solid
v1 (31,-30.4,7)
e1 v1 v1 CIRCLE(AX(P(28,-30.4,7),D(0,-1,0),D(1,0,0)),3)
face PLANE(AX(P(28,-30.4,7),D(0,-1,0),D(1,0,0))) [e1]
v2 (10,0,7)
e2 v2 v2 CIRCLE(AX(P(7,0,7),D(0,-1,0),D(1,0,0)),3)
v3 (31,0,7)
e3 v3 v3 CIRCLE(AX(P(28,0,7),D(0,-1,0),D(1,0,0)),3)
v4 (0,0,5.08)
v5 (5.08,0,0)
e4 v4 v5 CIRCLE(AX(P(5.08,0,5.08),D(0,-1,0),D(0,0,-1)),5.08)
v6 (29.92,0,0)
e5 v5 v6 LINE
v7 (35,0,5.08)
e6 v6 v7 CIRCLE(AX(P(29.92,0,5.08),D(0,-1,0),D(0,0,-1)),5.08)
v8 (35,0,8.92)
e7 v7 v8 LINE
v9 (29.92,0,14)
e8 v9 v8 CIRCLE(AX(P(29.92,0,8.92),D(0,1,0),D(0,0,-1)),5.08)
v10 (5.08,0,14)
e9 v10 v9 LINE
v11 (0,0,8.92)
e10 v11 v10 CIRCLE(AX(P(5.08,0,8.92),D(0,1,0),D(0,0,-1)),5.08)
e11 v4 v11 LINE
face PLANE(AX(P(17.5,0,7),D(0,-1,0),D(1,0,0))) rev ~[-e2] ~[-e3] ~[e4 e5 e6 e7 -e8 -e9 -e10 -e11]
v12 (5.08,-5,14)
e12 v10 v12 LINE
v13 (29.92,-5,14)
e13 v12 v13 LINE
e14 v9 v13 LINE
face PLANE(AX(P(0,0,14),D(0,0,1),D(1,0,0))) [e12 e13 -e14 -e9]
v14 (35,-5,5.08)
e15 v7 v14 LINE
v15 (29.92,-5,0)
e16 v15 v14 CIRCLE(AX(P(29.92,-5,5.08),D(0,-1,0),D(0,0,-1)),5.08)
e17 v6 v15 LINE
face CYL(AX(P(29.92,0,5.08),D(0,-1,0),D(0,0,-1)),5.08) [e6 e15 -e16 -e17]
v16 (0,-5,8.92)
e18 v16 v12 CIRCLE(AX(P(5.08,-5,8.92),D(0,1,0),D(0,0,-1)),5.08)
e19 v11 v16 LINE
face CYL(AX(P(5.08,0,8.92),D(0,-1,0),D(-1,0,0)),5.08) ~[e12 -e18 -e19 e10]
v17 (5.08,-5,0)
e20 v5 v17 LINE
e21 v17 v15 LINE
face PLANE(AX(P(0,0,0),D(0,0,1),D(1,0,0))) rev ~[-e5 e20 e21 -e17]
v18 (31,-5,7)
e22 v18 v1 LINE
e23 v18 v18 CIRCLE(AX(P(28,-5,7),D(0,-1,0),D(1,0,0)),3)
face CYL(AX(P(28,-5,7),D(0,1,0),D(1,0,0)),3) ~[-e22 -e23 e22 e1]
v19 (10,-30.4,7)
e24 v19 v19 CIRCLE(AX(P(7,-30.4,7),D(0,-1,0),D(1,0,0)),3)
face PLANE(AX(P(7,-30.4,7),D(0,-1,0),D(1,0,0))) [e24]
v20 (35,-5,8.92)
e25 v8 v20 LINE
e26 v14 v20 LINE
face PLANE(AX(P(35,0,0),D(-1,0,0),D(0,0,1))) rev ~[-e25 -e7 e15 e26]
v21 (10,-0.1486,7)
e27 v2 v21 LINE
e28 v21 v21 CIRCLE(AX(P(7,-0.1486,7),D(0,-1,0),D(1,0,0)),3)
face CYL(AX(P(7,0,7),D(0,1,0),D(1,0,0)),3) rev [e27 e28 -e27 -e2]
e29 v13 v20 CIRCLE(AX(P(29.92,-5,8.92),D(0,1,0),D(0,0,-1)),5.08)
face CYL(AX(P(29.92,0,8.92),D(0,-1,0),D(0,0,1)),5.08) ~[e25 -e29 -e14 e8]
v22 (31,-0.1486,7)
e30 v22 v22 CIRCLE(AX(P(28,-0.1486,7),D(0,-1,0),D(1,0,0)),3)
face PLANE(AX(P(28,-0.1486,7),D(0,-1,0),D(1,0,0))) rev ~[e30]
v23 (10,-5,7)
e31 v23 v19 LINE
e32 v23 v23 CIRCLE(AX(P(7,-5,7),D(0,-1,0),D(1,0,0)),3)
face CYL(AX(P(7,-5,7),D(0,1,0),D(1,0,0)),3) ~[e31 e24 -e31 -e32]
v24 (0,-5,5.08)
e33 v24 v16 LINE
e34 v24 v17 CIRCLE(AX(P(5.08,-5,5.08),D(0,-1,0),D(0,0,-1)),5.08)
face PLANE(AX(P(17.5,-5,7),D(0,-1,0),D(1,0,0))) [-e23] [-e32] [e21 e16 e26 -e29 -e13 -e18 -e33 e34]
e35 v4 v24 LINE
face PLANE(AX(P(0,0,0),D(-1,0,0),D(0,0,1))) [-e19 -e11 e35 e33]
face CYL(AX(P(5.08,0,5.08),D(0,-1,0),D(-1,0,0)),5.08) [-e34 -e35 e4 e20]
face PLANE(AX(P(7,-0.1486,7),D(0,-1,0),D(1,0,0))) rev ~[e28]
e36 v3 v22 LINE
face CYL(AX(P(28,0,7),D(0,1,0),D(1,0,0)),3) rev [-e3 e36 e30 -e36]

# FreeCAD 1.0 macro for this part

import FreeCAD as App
import Part
import Sketcher

V = App.Vector


def edges_at(feature, points):
    """Names of the edges that pass closest to the given points."""
    edges = feature.Shape.Edges
    near = lambda p: min(range(len(edges)), key=lambda i: edges[i].distToShape(Part.Vertex(*p))[0])
    return sorted({f"Edge{near(p) + 1}" for p in points})


def add_polygon(sketch, points):
    """Adds a closed chain of lines whose ends are joined by coincident constraints."""
    first, n = sketch.GeometryCount, len(points)
    for a, b in zip(points, points[1:] + points[:1]):
        sketch.addGeometry(Part.LineSegment(App.Vector(*a, 0), App.Vector(*b, 0)), False)
    for i in range(n):
        sketch.addConstraint(Sketcher.Constraint("Coincident", first + i, 2, first + (i + 1) % n, 1))

doc = App.newDocument("Part")
body = doc.addObject("PartDesign::Body", "Body")

# Sketch on XZ plane
sketch1 = body.newObject("Sketcher::SketchObject", "Sketch")
sketch1.AttachmentSupport = (doc.getObject("XZ_Plane"), [""])
sketch1.MapMode = "FlatFace"
add_polygon(sketch1, [(0, 14), (0, 0), (35, 0), (35, 14)])  # lines 0-3
sketch1.addGeometry(Part.Circle(V(7, 7, 0), V(0, 0, 1), 3), False)  # 4
sketch1.addGeometry(Part.Circle(V(28, 7, 0), V(0, 0, 1), 3), False)  # 5
sketch1.addConstraint([
    Sketcher.Constraint("Vertical", 0),
    Sketcher.Constraint("Horizontal", 1),
    Sketcher.Constraint("Vertical", 2),
    Sketcher.Constraint("Horizontal", 3),
    Sketcher.Constraint("Coincident", 0, 2, -1, 1),
    Sketcher.Constraint("Equal", 4, 5),
    Sketcher.Constraint("Horizontal", 4, 3, 5, 3),
    Sketcher.Constraint("Diameter", 4, 6.0),
    Sketcher.Constraint("DistanceX", 1, 1, 1, 2, 35.0),
    Sketcher.Constraint("DistanceY", 0, 2, 0, 1, 14.0),
    Sketcher.Constraint("DistanceX", -1, 1, 4, 3, 7.0),
    Sketcher.Constraint("DistanceY", -1, 1, 4, 3, 7.0),
    Sketcher.Constraint("DistanceX", -1, 1, 5, 3, 28.0),
])
pad1 = body.newObject("PartDesign::Pad", "Pad")
pad1.Profile = sketch1
pad1.Length = 5
doc.recompute()

fillet = body.newObject("PartDesign::Fillet", "Fillet")
fillet.Base = (pad1, edges_at(pad1, [
    (35, -2.5, 14),
    (35, -2.5, 0),
    (0, -2.5, 0),
    (0, -2.5, 14),
]))
fillet.Radius = 5.08

# Sketch on XZ plane
sketch2 = body.newObject("Sketcher::SketchObject", "Sketch001")
sketch2.AttachmentSupport = (doc.getObject("XZ_Plane"), [""])
sketch2.MapMode = "FlatFace"
sketch2.AttachmentOffset = App.Placement(V(0, 0, 5), App.Rotation())
sketch2.addGeometry([
    Part.Circle(V(28, 7, 0), V(0, 0, 1), 3),
    Part.Circle(V(7, 7, 0), V(0, 0, 1), 3),
], False)
sketch2.addConstraint([
    Sketcher.Constraint("Equal", 0, 1),
    Sketcher.Constraint("Horizontal", 0, 3, 1, 3),
    Sketcher.Constraint("Diameter", 0, 6.0),
    Sketcher.Constraint("DistanceX", -1, 1, 0, 3, 28.0),
    Sketcher.Constraint("DistanceY", -1, 1, 0, 3, 7.0),
    Sketcher.Constraint("DistanceX", -1, 1, 1, 3, 7.0),
])
pad2 = body.newObject("PartDesign::Pad", "Pad001")
pad2.Profile = sketch2
pad2.Type = "TwoLengths"
pad2.Length = 25.4
pad2.Length2 = 4.8514

doc.recompute()
